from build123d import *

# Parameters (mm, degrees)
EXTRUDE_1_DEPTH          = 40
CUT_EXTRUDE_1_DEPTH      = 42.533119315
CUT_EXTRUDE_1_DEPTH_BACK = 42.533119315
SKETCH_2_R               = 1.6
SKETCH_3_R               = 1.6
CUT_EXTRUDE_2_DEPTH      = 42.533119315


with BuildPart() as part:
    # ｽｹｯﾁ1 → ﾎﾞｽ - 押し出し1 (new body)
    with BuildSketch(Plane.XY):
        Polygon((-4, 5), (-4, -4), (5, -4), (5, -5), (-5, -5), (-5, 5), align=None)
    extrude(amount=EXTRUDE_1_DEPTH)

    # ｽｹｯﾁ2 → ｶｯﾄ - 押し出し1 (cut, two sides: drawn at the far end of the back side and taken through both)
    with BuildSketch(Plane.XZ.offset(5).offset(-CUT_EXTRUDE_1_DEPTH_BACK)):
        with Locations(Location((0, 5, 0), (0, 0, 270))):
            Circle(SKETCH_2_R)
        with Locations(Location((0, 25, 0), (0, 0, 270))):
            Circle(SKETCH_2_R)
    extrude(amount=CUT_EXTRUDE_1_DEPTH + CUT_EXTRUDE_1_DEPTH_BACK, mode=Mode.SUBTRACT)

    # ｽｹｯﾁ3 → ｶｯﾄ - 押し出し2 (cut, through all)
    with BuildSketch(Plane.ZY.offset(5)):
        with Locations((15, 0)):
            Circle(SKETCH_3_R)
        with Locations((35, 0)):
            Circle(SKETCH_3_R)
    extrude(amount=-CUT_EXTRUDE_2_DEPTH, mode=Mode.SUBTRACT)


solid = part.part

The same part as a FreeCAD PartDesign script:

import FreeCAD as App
import Part
import Sketcher

V = App.Vector
Q = App.Units.Quantity

doc = App.newDocument("Part")
body = doc.addObject("PartDesign::Body", "Body")

sketch1 = doc.addObject("Sketcher::SketchObject", "Sketch")
body.addObject(sketch1)
sketch1.AttachmentSupport = (doc.XY_Plane, [""])
sketch1.MapMode = "FlatFace"
sketch1.addGeometry(Part.LineSegment(V(-4, -4, 0), V(-4, 5, 0)), False)
sketch1.addGeometry(Part.LineSegment(V(-4, 5, 0), V(-5, 5, 0)), False)
sketch1.addGeometry(Part.LineSegment(V(-5, 5, 0), V(-5, -5, 0)), False)
sketch1.addGeometry(Part.LineSegment(V(-5, -5, 0), V(5, -5, 0)), False)
sketch1.addGeometry(Part.LineSegment(V(5, -5, 0), V(5, -4, 0)), False)
sketch1.addGeometry(Part.LineSegment(V(5, -4, 0), V(-4, -4, 0)), False)
sketch1.addConstraint(Sketcher.Constraint("Coincident", 0, 2, 1, 1))
sketch1.addConstraint(Sketcher.Constraint("Coincident", 1, 2, 2, 1))
sketch1.addConstraint(Sketcher.Constraint("Coincident", 2, 2, 3, 1))
sketch1.addConstraint(Sketcher.Constraint("Coincident", 3, 2, 4, 1))
sketch1.addConstraint(Sketcher.Constraint("Coincident", 4, 2, 5, 1))
sketch1.addConstraint(Sketcher.Constraint("Coincident", 5, 2, 0, 1))
sketch1.addConstraint(Sketcher.Constraint("Vertical", 0))
sketch1.addConstraint(Sketcher.Constraint("Horizontal", 1))
sketch1.addConstraint(Sketcher.Constraint("Vertical", 2))
sketch1.addConstraint(Sketcher.Constraint("Horizontal", 3))
sketch1.addConstraint(Sketcher.Constraint("Vertical", 4))
sketch1.addConstraint(Sketcher.Constraint("Horizontal", 5))
sketch1.addConstraint(Sketcher.Constraint("Symmetric", 1, 2, 3, 2, -1, 1))
sketch1.addConstraint(Sketcher.Constraint("Equal", 5, 0))
sketch1.addConstraint(Sketcher.Constraint("Equal", 3, 2))
sketch1.addConstraint(Sketcher.Constraint("DistanceX", 1, 2, 1, 1, Q("1 mm")))
sketch1.addConstraint(Sketcher.Constraint("DistanceX", 3, 1, 3, 2, Q("10 mm")))
pad1 = doc.addObject("PartDesign::Pad", "Pad")
body.addObject(pad1)
pad1.Profile = sketch1
pad1.Length = 40

sketch2 = doc.addObject("Sketcher::SketchObject", "Sketch001")
body.addObject(sketch2)
sketch2.AttachmentSupport = (doc.XZ_Plane, [""])
sketch2.MapMode = "FlatFace"
sketch2.AttachmentOffset = App.Placement(V(0, 0, 5), App.Rotation())
sketch2.addGeometry(Part.Circle(V(0, 5, 0), V(0, 0, 1), 1.6), False)
sketch2.addGeometry(Part.Circle(V(0, 25, 0), V(0, 0, 1), 1.6), False)
sketch2.addConstraint(Sketcher.Constraint("Equal", 0, 1))
sketch2.addConstraint(Sketcher.Constraint("PointOnObject", 0, 3, -2))
sketch2.addConstraint(Sketcher.Constraint("PointOnObject", 1, 3, -2))
sketch2.addConstraint(Sketcher.Constraint("Diameter", 0, Q("3.2 mm")))
sketch2.addConstraint(Sketcher.Constraint("DistanceY", -1, 1, 0, 3, Q("5 mm")))
sketch2.addConstraint(Sketcher.Constraint("DistanceY", -1, 1, 1, 3, Q("25 mm")))
pocket1 = doc.addObject("PartDesign::Pocket", "Pocket")
body.addObject(pocket1)
pocket1.Profile = sketch2
pocket1.Type = "ThroughAll"
pocket1.Midplane = True

sketch3 = doc.addObject("Sketcher::SketchObject", "Sketch002")
body.addObject(sketch3)
sketch3.AttachmentSupport = (doc.YZ_Plane, [""])
sketch3.MapMode = "FlatFace"
sketch3.AttachmentOffset = App.Placement(V(0, 0, -5), App.Rotation())
sketch3.addGeometry(Part.Circle(V(0, 15, 0), V(0, 0, 1), 1.6), False)
sketch3.addGeometry(Part.Circle(V(0, 35, 0), V(0, 0, 1), 1.6), False)
sketch3.addConstraint(Sketcher.Constraint("Equal", 0, 1))
sketch3.addConstraint(Sketcher.Constraint("PointOnObject", 0, 3, -2))
sketch3.addConstraint(Sketcher.Constraint("PointOnObject", 1, 3, -2))
sketch3.addConstraint(Sketcher.Constraint("Diameter", 0, Q("3.2 mm")))
sketch3.addConstraint(Sketcher.Constraint("DistanceY", -1, 1, 0, 3, Q("15 mm")))
sketch3.addConstraint(Sketcher.Constraint("DistanceY", -1, 1, 1, 3, Q("35 mm")))
pocket2 = doc.addObject("PartDesign::Pocket", "Pocket001")
body.addObject(pocket2)
pocket2.Profile = sketch3
pocket2.Type = "ThroughAll"
pocket2.Reversed = True

doc.recompute()
